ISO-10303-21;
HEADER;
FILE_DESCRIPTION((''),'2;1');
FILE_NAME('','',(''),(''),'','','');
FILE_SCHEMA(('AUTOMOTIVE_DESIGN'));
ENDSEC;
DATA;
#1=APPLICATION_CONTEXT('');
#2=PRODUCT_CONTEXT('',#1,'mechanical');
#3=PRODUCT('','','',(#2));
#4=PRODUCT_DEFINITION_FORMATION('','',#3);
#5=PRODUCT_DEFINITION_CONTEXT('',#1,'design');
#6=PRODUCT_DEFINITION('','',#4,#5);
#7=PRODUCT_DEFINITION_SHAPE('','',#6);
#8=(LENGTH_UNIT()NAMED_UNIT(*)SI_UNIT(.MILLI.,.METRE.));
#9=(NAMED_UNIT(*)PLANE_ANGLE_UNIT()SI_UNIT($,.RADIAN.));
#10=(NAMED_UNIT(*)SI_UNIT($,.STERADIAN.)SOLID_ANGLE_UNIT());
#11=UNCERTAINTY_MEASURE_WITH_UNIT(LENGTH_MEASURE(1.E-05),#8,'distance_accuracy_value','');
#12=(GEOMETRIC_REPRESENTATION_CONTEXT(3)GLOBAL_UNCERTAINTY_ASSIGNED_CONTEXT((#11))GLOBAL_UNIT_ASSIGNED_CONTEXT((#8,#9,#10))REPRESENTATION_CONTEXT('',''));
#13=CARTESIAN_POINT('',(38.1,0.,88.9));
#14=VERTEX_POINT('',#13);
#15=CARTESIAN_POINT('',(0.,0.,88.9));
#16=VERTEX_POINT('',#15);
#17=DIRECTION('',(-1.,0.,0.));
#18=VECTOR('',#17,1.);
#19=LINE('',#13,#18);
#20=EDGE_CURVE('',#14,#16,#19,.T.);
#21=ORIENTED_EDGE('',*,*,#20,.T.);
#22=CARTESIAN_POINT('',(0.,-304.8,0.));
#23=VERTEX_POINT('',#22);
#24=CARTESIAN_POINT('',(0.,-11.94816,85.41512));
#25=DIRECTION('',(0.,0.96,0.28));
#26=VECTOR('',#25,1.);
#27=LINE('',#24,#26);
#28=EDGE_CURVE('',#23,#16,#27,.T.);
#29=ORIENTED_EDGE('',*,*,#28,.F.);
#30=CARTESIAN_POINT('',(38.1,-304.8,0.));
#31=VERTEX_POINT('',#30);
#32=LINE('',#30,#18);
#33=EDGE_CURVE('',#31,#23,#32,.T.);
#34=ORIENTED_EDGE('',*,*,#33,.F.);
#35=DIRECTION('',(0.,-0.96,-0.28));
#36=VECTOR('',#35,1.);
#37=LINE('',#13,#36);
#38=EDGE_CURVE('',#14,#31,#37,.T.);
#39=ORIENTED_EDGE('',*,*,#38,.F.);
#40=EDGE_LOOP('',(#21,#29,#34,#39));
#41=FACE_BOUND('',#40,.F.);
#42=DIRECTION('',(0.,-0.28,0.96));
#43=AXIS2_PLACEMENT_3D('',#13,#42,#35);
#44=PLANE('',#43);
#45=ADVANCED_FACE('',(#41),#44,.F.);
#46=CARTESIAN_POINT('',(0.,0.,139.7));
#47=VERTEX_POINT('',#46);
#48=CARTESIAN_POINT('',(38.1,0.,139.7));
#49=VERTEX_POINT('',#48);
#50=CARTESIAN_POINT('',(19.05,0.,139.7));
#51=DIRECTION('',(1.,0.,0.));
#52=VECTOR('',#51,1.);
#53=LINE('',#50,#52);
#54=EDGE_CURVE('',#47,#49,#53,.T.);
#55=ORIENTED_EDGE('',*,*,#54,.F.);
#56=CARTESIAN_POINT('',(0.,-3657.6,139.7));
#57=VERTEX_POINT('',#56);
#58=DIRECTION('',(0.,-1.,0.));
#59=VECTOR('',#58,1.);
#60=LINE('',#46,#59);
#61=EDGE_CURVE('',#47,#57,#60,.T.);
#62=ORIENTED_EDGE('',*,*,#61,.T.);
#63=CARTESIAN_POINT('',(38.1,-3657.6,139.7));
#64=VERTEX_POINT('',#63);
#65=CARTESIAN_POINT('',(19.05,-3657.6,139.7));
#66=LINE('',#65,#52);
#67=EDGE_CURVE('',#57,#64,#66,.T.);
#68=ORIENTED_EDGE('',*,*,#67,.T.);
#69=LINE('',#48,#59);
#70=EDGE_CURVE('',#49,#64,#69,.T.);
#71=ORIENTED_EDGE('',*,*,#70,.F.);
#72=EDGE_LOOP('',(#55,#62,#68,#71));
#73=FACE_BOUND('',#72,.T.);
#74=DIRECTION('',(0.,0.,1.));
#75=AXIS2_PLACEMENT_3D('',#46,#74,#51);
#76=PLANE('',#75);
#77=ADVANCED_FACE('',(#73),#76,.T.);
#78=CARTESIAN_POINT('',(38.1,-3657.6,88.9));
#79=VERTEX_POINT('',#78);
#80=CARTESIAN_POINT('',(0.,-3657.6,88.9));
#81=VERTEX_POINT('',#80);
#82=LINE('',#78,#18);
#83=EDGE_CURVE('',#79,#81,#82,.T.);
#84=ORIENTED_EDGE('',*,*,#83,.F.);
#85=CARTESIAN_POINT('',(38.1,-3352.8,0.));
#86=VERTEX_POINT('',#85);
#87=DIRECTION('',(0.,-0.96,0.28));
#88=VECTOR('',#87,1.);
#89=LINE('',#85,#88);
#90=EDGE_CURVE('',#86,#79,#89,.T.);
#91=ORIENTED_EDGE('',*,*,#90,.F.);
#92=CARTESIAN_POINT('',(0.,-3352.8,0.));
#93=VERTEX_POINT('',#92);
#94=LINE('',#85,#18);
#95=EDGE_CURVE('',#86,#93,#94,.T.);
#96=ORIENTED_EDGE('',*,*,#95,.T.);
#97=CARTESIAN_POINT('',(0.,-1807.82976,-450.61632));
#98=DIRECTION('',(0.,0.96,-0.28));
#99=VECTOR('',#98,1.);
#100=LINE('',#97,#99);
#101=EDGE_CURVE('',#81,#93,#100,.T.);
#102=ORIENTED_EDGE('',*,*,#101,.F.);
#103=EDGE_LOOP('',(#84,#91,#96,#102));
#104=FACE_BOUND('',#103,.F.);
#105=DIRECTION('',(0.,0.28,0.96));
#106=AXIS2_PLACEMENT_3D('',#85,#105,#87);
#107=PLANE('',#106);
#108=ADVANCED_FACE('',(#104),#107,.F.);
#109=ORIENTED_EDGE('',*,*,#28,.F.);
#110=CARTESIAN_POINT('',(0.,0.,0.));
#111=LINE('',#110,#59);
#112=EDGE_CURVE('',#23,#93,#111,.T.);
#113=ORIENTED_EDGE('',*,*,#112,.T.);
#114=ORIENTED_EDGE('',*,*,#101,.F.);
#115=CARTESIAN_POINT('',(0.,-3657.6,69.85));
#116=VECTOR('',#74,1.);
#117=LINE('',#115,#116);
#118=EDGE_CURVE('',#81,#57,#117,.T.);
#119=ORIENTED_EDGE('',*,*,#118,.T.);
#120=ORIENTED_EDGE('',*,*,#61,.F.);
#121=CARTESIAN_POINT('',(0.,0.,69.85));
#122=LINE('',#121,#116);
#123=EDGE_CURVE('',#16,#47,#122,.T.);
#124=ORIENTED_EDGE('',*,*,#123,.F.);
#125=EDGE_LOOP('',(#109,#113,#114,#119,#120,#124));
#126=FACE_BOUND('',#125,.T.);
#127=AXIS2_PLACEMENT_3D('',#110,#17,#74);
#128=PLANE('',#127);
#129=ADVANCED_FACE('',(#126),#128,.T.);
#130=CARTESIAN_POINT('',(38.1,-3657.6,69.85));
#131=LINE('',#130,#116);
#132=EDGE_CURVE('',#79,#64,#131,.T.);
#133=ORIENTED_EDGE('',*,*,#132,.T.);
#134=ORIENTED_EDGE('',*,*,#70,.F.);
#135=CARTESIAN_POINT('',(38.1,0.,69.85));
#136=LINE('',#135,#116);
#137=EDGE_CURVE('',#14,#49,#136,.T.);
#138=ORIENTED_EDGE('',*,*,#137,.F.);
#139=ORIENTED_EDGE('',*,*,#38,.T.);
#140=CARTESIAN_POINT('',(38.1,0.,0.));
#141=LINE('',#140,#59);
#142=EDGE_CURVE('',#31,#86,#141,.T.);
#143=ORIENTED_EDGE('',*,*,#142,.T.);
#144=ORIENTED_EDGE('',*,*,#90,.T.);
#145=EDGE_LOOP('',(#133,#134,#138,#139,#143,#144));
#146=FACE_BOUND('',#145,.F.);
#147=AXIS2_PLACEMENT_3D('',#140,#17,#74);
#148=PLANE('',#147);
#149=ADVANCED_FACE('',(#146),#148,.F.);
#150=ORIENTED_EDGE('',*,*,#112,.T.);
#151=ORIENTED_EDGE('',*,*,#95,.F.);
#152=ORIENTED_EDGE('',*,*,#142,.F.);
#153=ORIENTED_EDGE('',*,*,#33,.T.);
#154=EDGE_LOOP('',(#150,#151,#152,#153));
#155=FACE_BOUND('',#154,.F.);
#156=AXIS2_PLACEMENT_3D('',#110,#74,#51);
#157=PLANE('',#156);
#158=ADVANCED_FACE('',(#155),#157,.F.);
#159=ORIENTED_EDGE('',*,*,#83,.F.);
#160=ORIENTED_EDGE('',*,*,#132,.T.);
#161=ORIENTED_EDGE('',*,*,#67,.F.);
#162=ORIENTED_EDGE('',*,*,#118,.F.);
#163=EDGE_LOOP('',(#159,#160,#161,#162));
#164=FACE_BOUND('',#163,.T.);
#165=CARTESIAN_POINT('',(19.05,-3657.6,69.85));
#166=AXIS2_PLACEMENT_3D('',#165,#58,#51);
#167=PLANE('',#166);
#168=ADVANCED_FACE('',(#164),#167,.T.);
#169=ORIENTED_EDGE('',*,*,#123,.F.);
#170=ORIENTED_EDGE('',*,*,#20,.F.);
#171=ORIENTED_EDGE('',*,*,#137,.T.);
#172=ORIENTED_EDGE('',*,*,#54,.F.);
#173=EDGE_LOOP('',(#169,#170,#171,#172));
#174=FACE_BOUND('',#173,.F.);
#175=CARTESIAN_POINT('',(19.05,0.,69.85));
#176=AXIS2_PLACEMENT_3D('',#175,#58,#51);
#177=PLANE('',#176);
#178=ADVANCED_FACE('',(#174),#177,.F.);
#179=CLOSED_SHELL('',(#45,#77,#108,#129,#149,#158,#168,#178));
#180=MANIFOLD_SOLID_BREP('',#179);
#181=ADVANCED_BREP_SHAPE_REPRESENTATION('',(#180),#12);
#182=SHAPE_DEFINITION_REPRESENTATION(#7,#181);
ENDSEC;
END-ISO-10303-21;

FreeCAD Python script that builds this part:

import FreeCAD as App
import Part
import Sketcher
from FreeCAD import Vector
Q = App.Units.Quantity


def add_polygon(sketch, points):
    """Adds a closed chain of lines whose ends are joined by coincident constraints."""
    first, n = sketch.GeometryCount, len(points)
    for a, b in zip(points, points[1:] + points[:1]):
        sketch.addGeometry(Part.LineSegment(App.Vector(*a, 0), App.Vector(*b, 0)), False)
    for i in range(n):
        sketch.addConstraint(Sketcher.Constraint("Coincident", first + i, 2, first + (i + 1) % n, 1))

doc = App.newDocument("Part")
body = doc.addObject("PartDesign::Body", "Body")

# Sketch on XZ plane
sketch1 = body.newObject("Sketcher::SketchObject", "Sketch")
sketch1.AttachmentSupport = (doc.getObject("XZ_Plane"), [""])
sketch1.MapMode = "FlatFace"
add_polygon(sketch1, [(0, 139.7), (0, 0), (38.1, 0), (38.1, 139.7)])  # lines 0-3
sketch1.addConstraint([
    Sketcher.Constraint("Vertical", 0),
    Sketcher.Constraint("Horizontal", 1),
    Sketcher.Constraint("Vertical", 2),
    Sketcher.Constraint("Horizontal", 3),
    Sketcher.Constraint("Coincident", 0, 2, -1, 1),
    Sketcher.Constraint("DistanceX", 1, 1, 1, 2, Q("1.5 in")),
    Sketcher.Constraint("DistanceY", 0, 2, 0, 1, Q("5.5 in")),
])
pad1 = body.newObject("PartDesign::Pad", "Pad")
pad1.Profile = sketch1
pad1.Length = Q("144 in")

# Sketch on YZ plane
sketch2 = body.newObject("Sketcher::SketchObject", "Sketch001")
sketch2.AttachmentSupport = (doc.getObject("YZ_Plane"), [""])
sketch2.MapMode = "FlatFace"
sketch2.AttachmentOffset = App.Placement(Vector(0, 0, 1.5 * 25.4), App.Rotation())
add_polygon(sketch2, [(-3657.6, 88.9), (-3657.6, 0), (-3352.8, 0)])  # lines 0-2
add_polygon(sketch2, [(0, 88.9), (-304.8, 0), (0, 0)])  # lines 3-5
sketch2.addConstraint([
    Sketcher.Constraint("Vertical", 0),
    Sketcher.Constraint("Horizontal", 1),
    Sketcher.Constraint("Horizontal", 4),
    Sketcher.Constraint("Vertical", 5),
    Sketcher.Constraint("Coincident", 4, 2, -1, 1),
    Sketcher.Constraint("PointOnObject", 0, 2, -1),
    Sketcher.Constraint("Horizontal", 2, 2, 5, 2),
    Sketcher.Constraint("Equal", 1, 4),
    Sketcher.Constraint("DistanceX", 1, 1, 1, 2, Q("12 in")),
    Sketcher.Constraint("DistanceY", 0, 2, 0, 1, Q("3.5 in")),
    Sketcher.Constraint("DistanceX", 0, 2, -1, 1, Q("144 in")),
])
pocket1 = body.newObject("PartDesign::Pocket", "Pocket")
pocket1.Profile = sketch2
pocket1.Type = "ThroughAll"

doc.recompute()
